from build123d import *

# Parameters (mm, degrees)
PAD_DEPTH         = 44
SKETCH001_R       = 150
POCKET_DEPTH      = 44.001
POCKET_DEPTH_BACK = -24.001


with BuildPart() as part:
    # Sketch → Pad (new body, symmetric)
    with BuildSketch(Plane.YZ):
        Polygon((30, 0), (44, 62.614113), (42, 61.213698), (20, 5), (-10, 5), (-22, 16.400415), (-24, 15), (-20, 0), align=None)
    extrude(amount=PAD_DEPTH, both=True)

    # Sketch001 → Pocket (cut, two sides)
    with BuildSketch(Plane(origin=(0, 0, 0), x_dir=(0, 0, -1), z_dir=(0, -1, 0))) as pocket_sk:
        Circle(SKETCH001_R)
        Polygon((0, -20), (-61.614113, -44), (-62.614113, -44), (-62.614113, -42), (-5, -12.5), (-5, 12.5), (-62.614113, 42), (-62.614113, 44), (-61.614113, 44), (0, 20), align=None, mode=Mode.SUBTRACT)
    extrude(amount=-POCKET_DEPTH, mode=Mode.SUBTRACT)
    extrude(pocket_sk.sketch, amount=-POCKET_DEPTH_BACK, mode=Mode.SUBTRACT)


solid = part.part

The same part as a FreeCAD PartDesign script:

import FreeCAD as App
import Part
import Sketcher
Q = App.Units.Quantity

doc = App.newDocument("Part")
body = doc.addObject("PartDesign::Body", "Body")

sketch1 = doc.addObject("Sketcher::SketchObject", "Sketch")
body.addObject(sketch1)
sketch1.AttachmentSupport = (doc.YZ_Plane, [""])
sketch1.MapMode = "FlatFace"
sketch1.addGeometry(Part.LineSegment(App.Vector(30, 0, 0), App.Vector(44, 62.6, 0)), False)
sketch1.addGeometry(Part.LineSegment(App.Vector(44, 62.6, 0), App.Vector(42, 61.2, 0)), False)
sketch1.addGeometry(Part.LineSegment(App.Vector(42, 61.2, 0), App.Vector(20, 5, 0)), False)
sketch1.addGeometry(Part.LineSegment(App.Vector(20, 5, 0), App.Vector(-10, 5, 0)), False)
sketch1.addGeometry(Part.LineSegment(App.Vector(-10, 5, 0), App.Vector(-22, 16.4, 0)), False)
sketch1.addGeometry(Part.LineSegment(App.Vector(-22, 16.4, 0), App.Vector(-24, 15, 0)), False)
sketch1.addGeometry(Part.LineSegment(App.Vector(-24, 15, 0), App.Vector(-20, 0, 0)), False)
sketch1.addGeometry(Part.LineSegment(App.Vector(-20, 0, 0), App.Vector(30, 0, 0)), False)
sketch1.addConstraint(Sketcher.Constraint("Coincident", 0, 2, 1, 1))
sketch1.addConstraint(Sketcher.Constraint("Coincident", 1, 2, 2, 1))
sketch1.addConstraint(Sketcher.Constraint("Coincident", 2, 2, 3, 1))
sketch1.addConstraint(Sketcher.Constraint("Coincident", 3, 2, 4, 1))
sketch1.addConstraint(Sketcher.Constraint("Coincident", 4, 2, 5, 1))
sketch1.addConstraint(Sketcher.Constraint("Coincident", 5, 2, 6, 1))
sketch1.addConstraint(Sketcher.Constraint("Coincident", 6, 2, 7, 1))
sketch1.addConstraint(Sketcher.Constraint("Coincident", 7, 2, 0, 1))
sketch1.addConstraint(Sketcher.Constraint("Horizontal", 3))
sketch1.addConstraint(Sketcher.Constraint("Horizontal", 7))
sketch1.addConstraint(Sketcher.Constraint("PointOnObject", 6, 2, -1))
sketch1.addConstraint(Sketcher.Constraint("Parallel", 1, 5))
sketch1.addConstraint(Sketcher.Constraint("Equal", 1, 5))
sketch1.addConstraint(Sketcher.Constraint("DistanceX", 3, 2, 3, 1, 30.0))
sketch1.addConstraint(Sketcher.Constraint("DistanceX", 7, 1, 7, 2, 50.0))
sketch1.addConstraint(Sketcher.Constraint("Angle", 1, Q("-145.000001 deg")))
sketch1.addConstraint(Sketcher.Constraint("DistanceX", -1, 1, 0, 2, 44.0))
sketch1.addConstraint(Sketcher.Constraint("DistanceX", -1, 1, 1, 2, 42.0))
sketch1.addConstraint(Sketcher.Constraint("DistanceX", -1, 1, 2, 2, 20.0))
sketch1.addConstraint(Sketcher.Constraint("DistanceY", -1, 1, 2, 2, 5.0))
sketch1.addConstraint(Sketcher.Constraint("DistanceX", 4, 2, -1, 1, 22.0))
sketch1.addConstraint(Sketcher.Constraint("DistanceY", -1, 1, 5, 2, 15.0))
sketch1.addConstraint(Sketcher.Constraint("DistanceX", 6, 2, -1, 1, 20.0))
sketch1.addConstraint(Sketcher.Constraint("DistanceY", 4, 2, 0, 2, 46.213698))
pad1 = doc.addObject("PartDesign::Pad", "Pad")
body.addObject(pad1)
pad1.Profile = sketch1
pad1.Length = 88
pad1.Midplane = True

sketch2 = doc.addObject("Sketcher::SketchObject", "Sketch001")
body.addObject(sketch2)
sketch2.AttachmentSupport = (doc.XZ_Plane, [""])
sketch2.MapMode = "FlatFace"
sketch2.addGeometry(Part.Circle(App.Vector(0, 0, 0), App.Vector(0, 0, 1), 150), False)
sketch2.addGeometry(Part.LineSegment(App.Vector(20, 0, 0), App.Vector(-20, 0, 0)), False)
sketch2.addGeometry(Part.LineSegment(App.Vector(-20, 0, 0), App.Vector(-44, 61.6, 0)), False)
sketch2.addGeometry(Part.LineSegment(App.Vector(-44, 61.6, 0), App.Vector(-44, 62.6, 0)), False)
sketch2.addGeometry(Part.LineSegment(App.Vector(-44, 62.6, 0), App.Vector(-42, 62.6, 0)), False)
sketch2.addGeometry(Part.LineSegment(App.Vector(-42, 62.6, 0), App.Vector(-12.5, 5, 0)), False)
sketch2.addGeometry(Part.LineSegment(App.Vector(-12.5, 5, 0), App.Vector(12.5, 5, 0)), False)
sketch2.addGeometry(Part.LineSegment(App.Vector(12.5, 5, 0), App.Vector(42, 62.6, 0)), False)
sketch2.addGeometry(Part.LineSegment(App.Vector(42, 62.6, 0), App.Vector(44, 62.6, 0)), False)
sketch2.addGeometry(Part.LineSegment(App.Vector(44, 62.6, 0), App.Vector(44, 61.6, 0)), False)
sketch2.addGeometry(Part.LineSegment(App.Vector(44, 61.6, 0), App.Vector(20, 0, 0)), False)
sketch2.addConstraint(Sketcher.Constraint("Coincident", 1, 2, 2, 1))
sketch2.addConstraint(Sketcher.Constraint("Coincident", 2, 2, 3, 1))
sketch2.addConstraint(Sketcher.Constraint("Coincident", 3, 2, 4, 1))
sketch2.addConstraint(Sketcher.Constraint("Coincident", 4, 2, 5, 1))
sketch2.addConstraint(Sketcher.Constraint("Coincident", 5, 2, 6, 1))
sketch2.addConstraint(Sketcher.Constraint("Coincident", 6, 2, 7, 1))
sketch2.addConstraint(Sketcher.Constraint("Coincident", 7, 2, 8, 1))
sketch2.addConstraint(Sketcher.Constraint("Coincident", 8, 2, 9, 1))
sketch2.addConstraint(Sketcher.Constraint("Coincident", 9, 2, 10, 1))
sketch2.addConstraint(Sketcher.Constraint("Coincident", 10, 2, 1, 1))
sketch2.addConstraint(Sketcher.Constraint("Horizontal", 1))
sketch2.addConstraint(Sketcher.Constraint("Vertical", 3))
sketch2.addConstraint(Sketcher.Constraint("Horizontal", 4))
sketch2.addConstraint(Sketcher.Constraint("Horizontal", 6))
sketch2.addConstraint(Sketcher.Constraint("Horizontal", 8))
sketch2.addConstraint(Sketcher.Constraint("Vertical", 9))
sketch2.addConstraint(Sketcher.Constraint("Coincident", 0, 3, -1, 1))
sketch2.addConstraint(Sketcher.Constraint("Symmetric", 1, 2, 10, 2, -1, 1))
sketch2.addConstraint(Sketcher.Constraint("Symmetric", 4, 2, 7, 2, -2))
sketch2.addConstraint(Sketcher.Constraint("Symmetric", 2, 2, 9, 2, -2))
sketch2.addConstraint(Sketcher.Constraint("Equal", 5, 7))
sketch2.addConstraint(Sketcher.Constraint("Diameter", 0, 300.0))
sketch2.addConstraint(Sketcher.Constraint("DistanceX", 1, 2, 1, 1, 40.0))
sketch2.addConstraint(Sketcher.Constraint("DistanceX", 4, 1, 4, 2, 2.0))
sketch2.addConstraint(Sketcher.Constraint("DistanceX", 6, 1, 6, 2, 25.0))
sketch2.addConstraint(Sketcher.Constraint("DistanceY", 3, 1, 3, 2, 1.0))
sketch2.addConstraint(Sketcher.Constraint("DistanceX", 2, 2, -1, 1, 44.0))
sketch2.addConstraint(Sketcher.Constraint("DistanceY", -1, 1, 5, 2, 5.0))
sketch2.addConstraint(Sketcher.Constraint("Distance", 2, 66.123361))
pocket1 = doc.addObject("PartDesign::Pocket", "Pocket")
body.addObject(pocket1)
pocket1.Profile = sketch2
pocket1.Type = "ThroughAll"
pocket1.Midplane = True

doc.recompute()
